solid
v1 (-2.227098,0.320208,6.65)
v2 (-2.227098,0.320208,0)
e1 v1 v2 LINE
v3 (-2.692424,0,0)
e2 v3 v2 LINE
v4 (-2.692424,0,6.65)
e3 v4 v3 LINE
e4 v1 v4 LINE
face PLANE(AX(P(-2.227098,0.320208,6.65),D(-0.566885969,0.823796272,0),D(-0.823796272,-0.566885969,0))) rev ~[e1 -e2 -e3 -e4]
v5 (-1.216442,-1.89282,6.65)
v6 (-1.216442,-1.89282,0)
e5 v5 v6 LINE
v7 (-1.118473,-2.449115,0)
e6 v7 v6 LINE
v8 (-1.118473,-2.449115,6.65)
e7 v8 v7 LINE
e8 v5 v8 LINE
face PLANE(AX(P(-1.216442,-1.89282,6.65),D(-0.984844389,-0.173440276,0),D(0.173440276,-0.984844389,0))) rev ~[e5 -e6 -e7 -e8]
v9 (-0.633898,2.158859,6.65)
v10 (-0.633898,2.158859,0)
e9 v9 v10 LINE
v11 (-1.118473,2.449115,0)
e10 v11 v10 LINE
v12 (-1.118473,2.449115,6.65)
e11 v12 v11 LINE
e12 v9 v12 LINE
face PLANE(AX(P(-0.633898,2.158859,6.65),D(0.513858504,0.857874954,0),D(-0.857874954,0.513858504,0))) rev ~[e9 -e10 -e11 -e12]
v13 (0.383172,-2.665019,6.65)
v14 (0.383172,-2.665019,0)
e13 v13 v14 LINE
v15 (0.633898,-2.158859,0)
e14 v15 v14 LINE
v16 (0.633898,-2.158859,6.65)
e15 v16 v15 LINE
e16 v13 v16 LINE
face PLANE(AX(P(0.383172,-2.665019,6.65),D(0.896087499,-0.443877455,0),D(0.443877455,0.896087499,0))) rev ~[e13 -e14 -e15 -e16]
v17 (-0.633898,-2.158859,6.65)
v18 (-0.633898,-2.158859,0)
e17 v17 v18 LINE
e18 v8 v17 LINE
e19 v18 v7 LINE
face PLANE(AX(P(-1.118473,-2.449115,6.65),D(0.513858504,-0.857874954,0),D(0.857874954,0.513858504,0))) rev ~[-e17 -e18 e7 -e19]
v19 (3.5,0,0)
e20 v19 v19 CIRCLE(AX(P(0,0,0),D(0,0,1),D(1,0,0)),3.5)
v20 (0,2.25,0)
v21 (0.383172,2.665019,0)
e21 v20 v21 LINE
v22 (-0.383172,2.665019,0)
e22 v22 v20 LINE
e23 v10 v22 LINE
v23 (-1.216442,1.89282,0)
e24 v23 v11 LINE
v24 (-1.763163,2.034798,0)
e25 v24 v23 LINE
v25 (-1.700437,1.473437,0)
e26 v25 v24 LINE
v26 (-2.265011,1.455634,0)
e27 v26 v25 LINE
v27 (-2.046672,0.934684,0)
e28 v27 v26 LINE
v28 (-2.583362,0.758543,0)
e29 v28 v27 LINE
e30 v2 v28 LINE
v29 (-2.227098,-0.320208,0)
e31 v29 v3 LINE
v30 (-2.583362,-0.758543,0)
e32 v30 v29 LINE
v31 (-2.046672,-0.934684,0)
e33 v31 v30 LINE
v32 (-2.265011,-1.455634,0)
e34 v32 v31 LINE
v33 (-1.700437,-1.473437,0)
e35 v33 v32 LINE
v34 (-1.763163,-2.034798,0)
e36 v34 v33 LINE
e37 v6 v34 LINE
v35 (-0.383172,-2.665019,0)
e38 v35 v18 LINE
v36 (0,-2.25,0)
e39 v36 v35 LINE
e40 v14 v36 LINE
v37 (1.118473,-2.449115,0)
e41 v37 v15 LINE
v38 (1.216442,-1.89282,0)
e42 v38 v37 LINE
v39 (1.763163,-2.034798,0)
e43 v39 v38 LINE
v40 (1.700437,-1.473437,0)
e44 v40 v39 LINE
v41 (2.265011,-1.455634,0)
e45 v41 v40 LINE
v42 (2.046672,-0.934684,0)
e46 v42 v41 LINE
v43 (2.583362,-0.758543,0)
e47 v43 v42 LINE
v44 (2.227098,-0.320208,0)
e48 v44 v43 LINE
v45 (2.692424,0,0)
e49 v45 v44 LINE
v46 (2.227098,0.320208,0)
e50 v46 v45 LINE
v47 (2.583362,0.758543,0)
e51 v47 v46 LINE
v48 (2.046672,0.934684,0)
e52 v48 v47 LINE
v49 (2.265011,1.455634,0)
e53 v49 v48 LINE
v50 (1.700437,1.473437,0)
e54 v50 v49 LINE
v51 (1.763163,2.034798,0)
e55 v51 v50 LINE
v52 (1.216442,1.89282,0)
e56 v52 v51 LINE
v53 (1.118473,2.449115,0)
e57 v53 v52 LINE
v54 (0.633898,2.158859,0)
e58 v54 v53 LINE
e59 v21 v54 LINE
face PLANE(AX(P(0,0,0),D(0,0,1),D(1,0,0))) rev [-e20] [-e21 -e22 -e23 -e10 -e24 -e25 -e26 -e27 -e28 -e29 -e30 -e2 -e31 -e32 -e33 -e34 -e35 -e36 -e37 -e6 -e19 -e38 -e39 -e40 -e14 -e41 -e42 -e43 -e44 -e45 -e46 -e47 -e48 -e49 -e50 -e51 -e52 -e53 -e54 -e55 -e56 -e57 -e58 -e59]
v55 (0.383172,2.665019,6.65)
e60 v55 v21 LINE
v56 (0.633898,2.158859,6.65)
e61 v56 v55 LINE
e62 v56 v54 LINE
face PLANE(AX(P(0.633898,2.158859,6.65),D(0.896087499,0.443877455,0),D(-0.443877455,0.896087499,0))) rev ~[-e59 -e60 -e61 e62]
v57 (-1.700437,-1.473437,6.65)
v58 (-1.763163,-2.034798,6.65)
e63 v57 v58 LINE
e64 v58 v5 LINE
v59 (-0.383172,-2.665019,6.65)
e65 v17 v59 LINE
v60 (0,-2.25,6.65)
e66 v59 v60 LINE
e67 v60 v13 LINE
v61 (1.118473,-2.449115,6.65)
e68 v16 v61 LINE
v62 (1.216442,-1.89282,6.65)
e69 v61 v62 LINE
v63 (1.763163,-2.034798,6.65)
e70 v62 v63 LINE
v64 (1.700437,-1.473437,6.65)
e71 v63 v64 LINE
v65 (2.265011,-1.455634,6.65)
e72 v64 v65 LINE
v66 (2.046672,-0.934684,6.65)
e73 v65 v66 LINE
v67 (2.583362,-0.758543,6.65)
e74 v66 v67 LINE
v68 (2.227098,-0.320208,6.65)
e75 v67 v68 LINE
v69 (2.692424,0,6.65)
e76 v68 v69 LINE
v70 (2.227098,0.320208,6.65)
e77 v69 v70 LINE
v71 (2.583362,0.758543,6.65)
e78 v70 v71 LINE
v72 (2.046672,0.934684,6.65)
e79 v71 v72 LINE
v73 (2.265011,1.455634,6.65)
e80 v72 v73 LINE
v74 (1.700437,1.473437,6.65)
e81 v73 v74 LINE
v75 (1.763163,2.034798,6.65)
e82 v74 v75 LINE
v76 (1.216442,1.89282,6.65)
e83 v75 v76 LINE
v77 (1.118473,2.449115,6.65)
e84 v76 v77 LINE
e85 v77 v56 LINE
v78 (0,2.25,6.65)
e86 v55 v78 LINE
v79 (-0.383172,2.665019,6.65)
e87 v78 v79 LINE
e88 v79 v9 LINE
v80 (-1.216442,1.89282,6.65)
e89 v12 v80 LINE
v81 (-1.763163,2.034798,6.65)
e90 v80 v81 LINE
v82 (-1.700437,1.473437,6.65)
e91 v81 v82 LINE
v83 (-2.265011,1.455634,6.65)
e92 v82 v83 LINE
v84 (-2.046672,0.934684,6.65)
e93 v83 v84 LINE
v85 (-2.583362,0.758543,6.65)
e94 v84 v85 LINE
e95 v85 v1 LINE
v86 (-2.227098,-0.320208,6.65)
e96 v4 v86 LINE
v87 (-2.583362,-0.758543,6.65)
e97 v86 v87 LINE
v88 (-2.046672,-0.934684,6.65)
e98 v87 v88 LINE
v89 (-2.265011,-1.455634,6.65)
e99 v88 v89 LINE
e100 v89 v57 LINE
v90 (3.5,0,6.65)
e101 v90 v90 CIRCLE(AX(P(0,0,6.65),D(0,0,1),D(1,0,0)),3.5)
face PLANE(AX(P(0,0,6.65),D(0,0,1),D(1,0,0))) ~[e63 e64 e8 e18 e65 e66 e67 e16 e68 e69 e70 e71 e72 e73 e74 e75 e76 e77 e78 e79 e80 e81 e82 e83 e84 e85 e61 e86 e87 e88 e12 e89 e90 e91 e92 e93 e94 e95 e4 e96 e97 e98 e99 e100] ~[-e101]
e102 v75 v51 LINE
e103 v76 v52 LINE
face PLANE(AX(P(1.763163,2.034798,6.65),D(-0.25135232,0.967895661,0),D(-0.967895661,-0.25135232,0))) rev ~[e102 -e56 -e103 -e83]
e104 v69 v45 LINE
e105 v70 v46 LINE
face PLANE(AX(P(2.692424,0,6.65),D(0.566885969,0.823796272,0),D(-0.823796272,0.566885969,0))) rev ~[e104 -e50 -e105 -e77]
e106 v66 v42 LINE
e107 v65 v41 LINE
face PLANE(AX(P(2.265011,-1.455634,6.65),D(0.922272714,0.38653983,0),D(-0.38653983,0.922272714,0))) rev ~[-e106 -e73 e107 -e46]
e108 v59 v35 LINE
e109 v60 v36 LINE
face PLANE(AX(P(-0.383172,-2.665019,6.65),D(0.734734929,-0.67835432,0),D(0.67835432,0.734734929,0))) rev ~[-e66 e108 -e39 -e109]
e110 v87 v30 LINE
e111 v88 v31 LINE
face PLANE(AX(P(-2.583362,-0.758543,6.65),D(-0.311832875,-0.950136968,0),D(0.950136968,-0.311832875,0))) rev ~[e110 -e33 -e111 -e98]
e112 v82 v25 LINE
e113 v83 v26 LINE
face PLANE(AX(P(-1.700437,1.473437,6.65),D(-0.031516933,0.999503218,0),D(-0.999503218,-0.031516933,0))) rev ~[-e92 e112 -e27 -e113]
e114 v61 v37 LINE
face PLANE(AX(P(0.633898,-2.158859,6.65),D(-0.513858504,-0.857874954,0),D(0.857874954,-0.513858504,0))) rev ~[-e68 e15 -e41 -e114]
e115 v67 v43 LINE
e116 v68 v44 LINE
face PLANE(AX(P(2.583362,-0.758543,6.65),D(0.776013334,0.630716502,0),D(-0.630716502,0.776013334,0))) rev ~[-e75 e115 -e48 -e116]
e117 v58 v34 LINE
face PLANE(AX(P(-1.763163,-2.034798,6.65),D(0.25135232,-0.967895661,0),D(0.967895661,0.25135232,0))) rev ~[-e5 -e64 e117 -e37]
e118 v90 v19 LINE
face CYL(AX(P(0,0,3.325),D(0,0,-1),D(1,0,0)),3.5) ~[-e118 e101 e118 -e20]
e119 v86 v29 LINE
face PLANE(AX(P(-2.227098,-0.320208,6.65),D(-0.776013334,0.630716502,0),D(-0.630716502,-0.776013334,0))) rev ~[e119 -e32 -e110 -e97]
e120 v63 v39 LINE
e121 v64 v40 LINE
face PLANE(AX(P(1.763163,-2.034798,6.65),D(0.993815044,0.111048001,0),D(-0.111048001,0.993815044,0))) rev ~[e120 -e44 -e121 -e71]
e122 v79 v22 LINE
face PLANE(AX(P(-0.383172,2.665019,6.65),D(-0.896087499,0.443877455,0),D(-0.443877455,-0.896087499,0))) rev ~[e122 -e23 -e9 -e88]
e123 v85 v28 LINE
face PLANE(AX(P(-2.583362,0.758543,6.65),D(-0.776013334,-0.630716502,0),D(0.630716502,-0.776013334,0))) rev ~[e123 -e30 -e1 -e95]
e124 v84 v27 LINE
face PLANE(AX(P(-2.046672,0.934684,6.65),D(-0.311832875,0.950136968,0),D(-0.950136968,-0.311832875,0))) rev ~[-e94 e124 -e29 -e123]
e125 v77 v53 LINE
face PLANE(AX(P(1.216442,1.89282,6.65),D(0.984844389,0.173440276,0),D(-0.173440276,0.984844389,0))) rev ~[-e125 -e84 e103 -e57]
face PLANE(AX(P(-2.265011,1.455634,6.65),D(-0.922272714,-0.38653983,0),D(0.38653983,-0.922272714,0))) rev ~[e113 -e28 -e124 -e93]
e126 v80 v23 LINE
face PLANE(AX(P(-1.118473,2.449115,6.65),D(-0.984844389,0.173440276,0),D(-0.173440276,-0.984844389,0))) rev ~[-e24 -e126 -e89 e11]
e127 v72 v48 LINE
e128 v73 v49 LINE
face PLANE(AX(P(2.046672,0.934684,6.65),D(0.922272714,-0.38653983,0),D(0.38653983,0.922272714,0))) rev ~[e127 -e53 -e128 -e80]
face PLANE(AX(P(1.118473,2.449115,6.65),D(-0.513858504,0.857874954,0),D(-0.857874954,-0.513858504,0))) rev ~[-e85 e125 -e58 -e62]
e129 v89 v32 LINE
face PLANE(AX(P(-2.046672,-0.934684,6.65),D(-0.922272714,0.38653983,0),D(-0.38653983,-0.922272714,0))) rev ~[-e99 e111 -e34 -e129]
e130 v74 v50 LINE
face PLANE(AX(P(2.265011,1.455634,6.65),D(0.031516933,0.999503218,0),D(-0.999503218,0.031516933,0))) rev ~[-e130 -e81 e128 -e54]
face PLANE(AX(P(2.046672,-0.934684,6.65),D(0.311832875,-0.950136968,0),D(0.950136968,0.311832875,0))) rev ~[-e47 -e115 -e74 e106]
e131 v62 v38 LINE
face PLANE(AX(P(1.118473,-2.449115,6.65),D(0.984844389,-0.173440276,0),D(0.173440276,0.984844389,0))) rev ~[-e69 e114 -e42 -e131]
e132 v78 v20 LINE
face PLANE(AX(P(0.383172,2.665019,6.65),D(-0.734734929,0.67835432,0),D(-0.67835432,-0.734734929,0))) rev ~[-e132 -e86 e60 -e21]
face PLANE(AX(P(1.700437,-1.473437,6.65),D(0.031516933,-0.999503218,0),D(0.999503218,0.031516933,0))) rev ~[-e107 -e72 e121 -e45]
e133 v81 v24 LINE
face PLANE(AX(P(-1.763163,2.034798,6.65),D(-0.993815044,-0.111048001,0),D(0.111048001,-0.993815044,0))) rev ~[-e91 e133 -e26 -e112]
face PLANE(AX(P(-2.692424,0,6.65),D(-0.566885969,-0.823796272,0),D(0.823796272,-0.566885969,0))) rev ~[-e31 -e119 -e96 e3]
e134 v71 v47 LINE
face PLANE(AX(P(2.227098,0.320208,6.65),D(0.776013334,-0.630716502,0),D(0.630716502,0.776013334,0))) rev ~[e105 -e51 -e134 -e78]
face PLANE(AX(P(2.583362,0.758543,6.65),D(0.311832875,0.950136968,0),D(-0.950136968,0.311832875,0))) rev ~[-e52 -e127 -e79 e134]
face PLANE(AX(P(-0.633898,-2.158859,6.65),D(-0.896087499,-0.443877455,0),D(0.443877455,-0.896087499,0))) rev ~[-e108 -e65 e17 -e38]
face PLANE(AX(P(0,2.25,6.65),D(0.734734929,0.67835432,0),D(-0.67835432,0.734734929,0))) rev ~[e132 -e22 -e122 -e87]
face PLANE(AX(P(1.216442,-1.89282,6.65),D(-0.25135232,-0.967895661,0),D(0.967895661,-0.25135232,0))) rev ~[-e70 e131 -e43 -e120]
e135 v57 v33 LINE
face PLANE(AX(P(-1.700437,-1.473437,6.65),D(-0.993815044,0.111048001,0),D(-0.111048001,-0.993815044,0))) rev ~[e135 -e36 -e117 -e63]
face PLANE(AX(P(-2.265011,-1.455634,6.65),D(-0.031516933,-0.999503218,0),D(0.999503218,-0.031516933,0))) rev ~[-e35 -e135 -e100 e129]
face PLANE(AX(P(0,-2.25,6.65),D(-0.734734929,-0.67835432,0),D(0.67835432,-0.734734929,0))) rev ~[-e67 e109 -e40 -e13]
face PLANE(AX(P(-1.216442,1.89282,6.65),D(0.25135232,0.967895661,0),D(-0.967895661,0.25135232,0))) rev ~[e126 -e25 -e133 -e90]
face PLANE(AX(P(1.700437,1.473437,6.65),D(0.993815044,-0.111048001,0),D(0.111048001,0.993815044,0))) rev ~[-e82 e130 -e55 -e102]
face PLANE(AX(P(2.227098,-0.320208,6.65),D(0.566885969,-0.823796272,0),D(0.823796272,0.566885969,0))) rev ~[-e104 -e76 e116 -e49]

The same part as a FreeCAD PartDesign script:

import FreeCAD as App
import Part
import Sketcher

V = App.Vector
Q = App.Units.Quantity

doc = App.newDocument("Part")
body = doc.addObject("PartDesign::Body", "Body")

sketch1 = body.newObject("Sketcher::SketchObject", "Sketch")
sketch1.AttachmentSupport = (doc.getObject("XZ_Plane"), [""])
sketch1.MapMode = "FlatFace"
sketch1.addGeometry(Part.LineSegment(V(0, 0, 0), V(0, 6.7, 0)), False)
sketch1.addGeometry(Part.LineSegment(V(0, 6.7, 0), V(3.5, 6.7, 0)), False)
sketch1.addGeometry(Part.LineSegment(V(3.5, 6.7, 0), V(3.5, 0, 0)), False)
sketch1.addGeometry(Part.LineSegment(V(3.5, 0, 0), V(0, 0, 0)), False)
sketch1.addConstraint(Sketcher.Constraint("Coincident", 0, 2, 1, 1))
sketch1.addConstraint(Sketcher.Constraint("Coincident", 1, 2, 2, 1))
sketch1.addConstraint(Sketcher.Constraint("Coincident", 2, 2, 3, 1))
sketch1.addConstraint(Sketcher.Constraint("Coincident", 3, 2, 0, 1))
sketch1.addConstraint(Sketcher.Constraint("Vertical", 0))
sketch1.addConstraint(Sketcher.Constraint("Horizontal", 1))
sketch1.addConstraint(Sketcher.Constraint("Vertical", 2))
sketch1.addConstraint(Sketcher.Constraint("Horizontal", 3))
sketch1.addConstraint(Sketcher.Constraint("Coincident", 3, 2, -1, 1))
sketch1.addConstraint(Sketcher.Constraint("DistanceX", 1, 1, 1, 2, 3.5))
sketch1.addConstraint(Sketcher.Constraint("DistanceY", 0, 1, 0, 2, 6.65))
revolution = body.newObject("PartDesign::Revolution", "Revolution")
revolution.Profile = sketch1
revolution.ReferenceAxis = (sketch1, ["V_Axis"])
revolution.Angle = 360

sketch2 = body.newObject("Sketcher::SketchObject", "Sketch001")
sketch2.AttachmentSupport = (doc.getObject("XY_Plane"), [""])
sketch2.MapMode = "FlatFace"
sketch2.AttachmentOffset = App.Placement(V(0, 0, 6.65), App.Rotation())
sketch2.addGeometry(Part.LineSegment(V(2.06, 1.32, 0), V(1.7, 1.47, 0)), False)
sketch2.addGeometry(Part.LineSegment(V(1.7, 1.47, 0), V(1.6, 1.85, 0)), False)
sketch2.addGeometry(Part.LineSegment(V(1.6, 1.85, 0), V(1.22, 1.89, 0)), False)
sketch2.addGeometry(Part.LineSegment(V(1.22, 1.89, 0), V(1.02, 2.23, 0)), False)
sketch2.addGeometry(Part.LineSegment(V(1.02, 2.23, 0), V(0.63, 2.16, 0)), False)
sketch2.addGeometry(Part.LineSegment(V(0.63, 2.16, 0), V(0.35, 2.42, 0)), False)
sketch2.addGeometry(Part.LineSegment(V(0.35, 2.42, 0), V(0, 2.25, 0)), False)
sketch2.addGeometry(Part.LineSegment(V(0, 2.25, 0), V(-0.35, 2.42, 0)), False)
sketch2.addGeometry(Part.LineSegment(V(-0.35, 2.42, 0), V(-0.63, 2.16, 0)), False)
sketch2.addGeometry(Part.LineSegment(V(-0.63, 2.16, 0), V(-1.02, 2.23, 0)), False)
sketch2.addGeometry(Part.LineSegment(V(-1.02, 2.23, 0), V(-1.22, 1.89, 0)), False)
sketch2.addGeometry(Part.LineSegment(V(-1.22, 1.89, 0), V(-1.6, 1.85, 0)), False)
sketch2.addGeometry(Part.LineSegment(V(-1.6, 1.85, 0), V(-1.7, 1.47, 0)), False)
sketch2.addGeometry(Part.LineSegment(V(-1.7, 1.47, 0), V(-2.06, 1.32, 0)), False)
sketch2.addGeometry(Part.LineSegment(V(-2.06, 1.32, 0), V(-2.05, 0.93, 0)), False)
sketch2.addGeometry(Part.LineSegment(V(-2.05, 0.93, 0), V(-2.35, 0.69, 0)), False)
sketch2.addGeometry(Part.LineSegment(V(-2.35, 0.69, 0), V(-2.23, 0.32, 0)), False)
sketch2.addGeometry(Part.LineSegment(V(-2.23, 0.32, 0), V(-2.45, 0, 0)), False)
sketch2.addGeometry(Part.LineSegment(V(-2.45, 0, 0), V(-2.23, -0.32, 0)), False)
sketch2.addGeometry(Part.LineSegment(V(-2.23, -0.32, 0), V(-2.35, -0.69, 0)), False)
sketch2.addGeometry(Part.LineSegment(V(-2.35, -0.69, 0), V(-2.05, -0.93, 0)), False)
sketch2.addGeometry(Part.LineSegment(V(-2.05, -0.93, 0), V(-2.06, -1.32, 0)), False)
sketch2.addGeometry(Part.LineSegment(V(-2.06, -1.32, 0), V(-1.7, -1.47, 0)), False)
sketch2.addGeometry(Part.LineSegment(V(-1.7, -1.47, 0), V(-1.6, -1.85, 0)), False)
sketch2.addGeometry(Part.LineSegment(V(-1.6, -1.85, 0), V(-1.22, -1.89, 0)), False)
sketch2.addGeometry(Part.LineSegment(V(-1.22, -1.89, 0), V(-1.02, -2.23, 0)), False)
sketch2.addGeometry(Part.LineSegment(V(-1.02, -2.23, 0), V(-0.63, -2.16, 0)), False)
sketch2.addGeometry(Part.LineSegment(V(-0.63, -2.16, 0), V(-0.35, -2.42, 0)), False)
sketch2.addGeometry(Part.LineSegment(V(-0.35, -2.42, 0), V(0, -2.25, 0)), False)
sketch2.addGeometry(Part.LineSegment(V(0, -2.25, 0), V(0.35, -2.42, 0)), False)
sketch2.addGeometry(Part.LineSegment(V(0.35, -2.42, 0), V(0.63, -2.16, 0)), False)
sketch2.addGeometry(Part.LineSegment(V(0.63, -2.16, 0), V(1.02, -2.23, 0)), False)
sketch2.addGeometry(Part.LineSegment(V(1.02, -2.23, 0), V(1.22, -1.89, 0)), False)
sketch2.addGeometry(Part.LineSegment(V(1.22, -1.89, 0), V(1.6, -1.85, 0)), False)
sketch2.addGeometry(Part.LineSegment(V(1.6, -1.85, 0), V(1.7, -1.47, 0)), False)
sketch2.addGeometry(Part.LineSegment(V(1.7, -1.47, 0), V(2.06, -1.32, 0)), False)
sketch2.addGeometry(Part.LineSegment(V(2.06, -1.32, 0), V(2.05, -0.93, 0)), False)
sketch2.addGeometry(Part.LineSegment(V(2.05, -0.93, 0), V(2.35, -0.69, 0)), False)
sketch2.addGeometry(Part.LineSegment(V(2.35, -0.69, 0), V(2.23, -0.32, 0)), False)
sketch2.addGeometry(Part.LineSegment(V(2.23, -0.32, 0), V(2.45, 0, 0)), False)
sketch2.addGeometry(Part.LineSegment(V(2.45, 0, 0), V(2.23, 0.32, 0)), False)
sketch2.addGeometry(Part.LineSegment(V(2.23, 0.32, 0), V(2.35, 0.69, 0)), False)
sketch2.addGeometry(Part.LineSegment(V(2.35, 0.69, 0), V(2.05, 0.93, 0)), False)
sketch2.addGeometry(Part.LineSegment(V(2.05, 0.93, 0), V(2.06, 1.32, 0)), False)
sketch2.addConstraint(Sketcher.Constraint("Coincident", 0, 2, 1, 1))
sketch2.addConstraint(Sketcher.Constraint("Coincident", 1, 2, 2, 1))
sketch2.addConstraint(Sketcher.Constraint("Coincident", 2, 2, 3, 1))
sketch2.addConstraint(Sketcher.Constraint("Coincident", 3, 2, 4, 1))
sketch2.addConstraint(Sketcher.Constraint("Coincident", 4, 2, 5, 1))
sketch2.addConstraint(Sketcher.Constraint("Coincident", 5, 2, 6, 1))
sketch2.addConstraint(Sketcher.Constraint("Coincident", 6, 2, 7, 1))
sketch2.addConstraint(Sketcher.Constraint("Coincident", 7, 2, 8, 1))
sketch2.addConstraint(Sketcher.Constraint("Coincident", 8, 2, 9, 1))
sketch2.addConstraint(Sketcher.Constraint("Coincident", 9, 2, 10, 1))
sketch2.addConstraint(Sketcher.Constraint("Coincident", 10, 2, 11, 1))
sketch2.addConstraint(Sketcher.Constraint("Coincident", 11, 2, 12, 1))
sketch2.addConstraint(Sketcher.Constraint("Coincident", 12, 2, 13, 1))
sketch2.addConstraint(Sketcher.Constraint("Coincident", 13, 2, 14, 1))
sketch2.addConstraint(Sketcher.Constraint("Coincident", 14, 2, 15, 1))
sketch2.addConstraint(Sketcher.Constraint("Coincident", 15, 2, 16, 1))
sketch2.addConstraint(Sketcher.Constraint("Coincident", 16, 2, 17, 1))
sketch2.addConstraint(Sketcher.Constraint("Coincident", 17, 2, 18, 1))
sketch2.addConstraint(Sketcher.Constraint("Coincident", 18, 2, 19, 1))
sketch2.addConstraint(Sketcher.Constraint("Coincident", 19, 2, 20, 1))
sketch2.addConstraint(Sketcher.Constraint("Coincident", 20, 2, 21, 1))
sketch2.addConstraint(Sketcher.Constraint("Coincident", 21, 2, 22, 1))
sketch2.addConstraint(Sketcher.Constraint("Coincident", 22, 2, 23, 1))
sketch2.addConstraint(Sketcher.Constraint("Coincident", 23, 2, 24, 1))
sketch2.addConstraint(Sketcher.Constraint("Coincident", 24, 2, 25, 1))
sketch2.addConstraint(Sketcher.Constraint("Coincident", 25, 2, 26, 1))
sketch2.addConstraint(Sketcher.Constraint("Coincident", 26, 2, 27, 1))
sketch2.addConstraint(Sketcher.Constraint("Coincident", 27, 2, 28, 1))
sketch2.addConstraint(Sketcher.Constraint("Coincident", 28, 2, 29, 1))
sketch2.addConstraint(Sketcher.Constraint("Coincident", 29, 2, 30, 1))
sketch2.addConstraint(Sketcher.Constraint("Coincident", 30, 2, 31, 1))
sketch2.addConstraint(Sketcher.Constraint("Coincident", 31, 2, 32, 1))
sketch2.addConstraint(Sketcher.Constraint("Coincident", 32, 2, 33, 1))
sketch2.addConstraint(Sketcher.Constraint("Coincident", 33, 2, 34, 1))
sketch2.addConstraint(Sketcher.Constraint("Coincident", 34, 2, 35, 1))
sketch2.addConstraint(Sketcher.Constraint("Coincident", 35, 2, 36, 1))
sketch2.addConstraint(Sketcher.Constraint("Coincident", 36, 2, 37, 1))
sketch2.addConstraint(Sketcher.Constraint("Coincident", 37, 2, 38, 1))
sketch2.addConstraint(Sketcher.Constraint("Coincident", 38, 2, 39, 1))
sketch2.addConstraint(Sketcher.Constraint("Coincident", 39, 2, 40, 1))
sketch2.addConstraint(Sketcher.Constraint("Coincident", 40, 2, 41, 1))
sketch2.addConstraint(Sketcher.Constraint("Coincident", 41, 2, 42, 1))
sketch2.addConstraint(Sketcher.Constraint("Coincident", 42, 2, 43, 1))
sketch2.addConstraint(Sketcher.Constraint("Coincident", 43, 2, 0, 1))
sketch2.addConstraint(Sketcher.Constraint("Symmetric", 0, 2, 22, 2, -1, 1))
sketch2.addConstraint(Sketcher.Constraint("Symmetric", 1, 2, 23, 2, -1, 1))
sketch2.addConstraint(Sketcher.Constraint("Symmetric", 2, 2, 24, 2, -1, 1))
sketch2.addConstraint(Sketcher.Constraint("Symmetric", 3, 2, 25, 2, -1, 1))
sketch2.addConstraint(Sketcher.Constraint("Symmetric", 4, 2, 26, 2, -1, 1))
sketch2.addConstraint(Sketcher.Constraint("Symmetric", 5, 2, 27, 2, -1, 1))
sketch2.addConstraint(Sketcher.Constraint("Symmetric", 6, 2, 28, 2, -1, 1))
sketch2.addConstraint(Sketcher.Constraint("Symmetric", 7, 2, 29, 2, -1, 1))
sketch2.addConstraint(Sketcher.Constraint("Symmetric", 8, 2, 30, 2, -1, 1))
sketch2.addConstraint(Sketcher.Constraint("Symmetric", 9, 2, 31, 2, -1, 1))
sketch2.addConstraint(Sketcher.Constraint("Symmetric", 10, 2, 32, 2, -1, 1))
sketch2.addConstraint(Sketcher.Constraint("Symmetric", 11, 2, 33, 2, -1, 1))
sketch2.addConstraint(Sketcher.Constraint("Symmetric", 12, 2, 34, 2, -1, 1))
sketch2.addConstraint(Sketcher.Constraint("Symmetric", 13, 2, 35, 2, -1, 1))
sketch2.addConstraint(Sketcher.Constraint("Symmetric", 14, 2, 36, 2, -1, 1))
sketch2.addConstraint(Sketcher.Constraint("Symmetric", 15, 2, 37, 2, -1, 1))
sketch2.addConstraint(Sketcher.Constraint("Symmetric", 16, 2, 38, 2, -1, 1))
sketch2.addConstraint(Sketcher.Constraint("Symmetric", 17, 2, 39, 2, -1, 1))
sketch2.addConstraint(Sketcher.Constraint("Symmetric", 18, 2, 40, 2, -1, 1))
sketch2.addConstraint(Sketcher.Constraint("Symmetric", 19, 2, 41, 2, -1, 1))
sketch2.addConstraint(Sketcher.Constraint("Symmetric", 20, 2, 42, 2, -1, 1))
sketch2.addConstraint(Sketcher.Constraint("Symmetric", 21, 2, 43, 2, -1, 1))
sketch2.addConstraint(Sketcher.Constraint("Symmetric", 5, 2, 7, 2, -2))
sketch2.addConstraint(Sketcher.Constraint("Symmetric", 4, 2, 8, 2, -2))
sketch2.addConstraint(Sketcher.Constraint("Symmetric", 3, 2, 9, 2, -2))
sketch2.addConstraint(Sketcher.Constraint("Symmetric", 2, 2, 10, 2, -2))
sketch2.addConstraint(Sketcher.Constraint("Symmetric", 1, 2, 11, 2, -2))
sketch2.addConstraint(Sketcher.Constraint("Symmetric", 0, 2, 12, 2, -2))
sketch2.addConstraint(Sketcher.Constraint("Symmetric", 21, 2, 35, 2, -2))
sketch2.addConstraint(Sketcher.Constraint("Symmetric", 20, 2, 36, 2, -2))
sketch2.addConstraint(Sketcher.Constraint("Symmetric", 19, 2, 37, 2, -2))
sketch2.addConstraint(Sketcher.Constraint("Symmetric", 18, 2, 38, 2, -2))
sketch2.addConstraint(Sketcher.Constraint("PointOnObject", 6, 2, -2))
sketch2.addConstraint(Sketcher.Constraint("PointOnObject", 17, 2, -1))
sketch2.addConstraint(Sketcher.Constraint("Equal", 0, 1))
sketch2.addConstraint(Sketcher.Constraint("Equal", 1, 2))
sketch2.addConstraint(Sketcher.Constraint("Equal", 2, 3))
sketch2.addConstraint(Sketcher.Constraint("Equal", 3, 4))
sketch2.addConstraint(Sketcher.Constraint("Equal", 4, 5))
sketch2.addConstraint(Sketcher.Constraint("Equal", 5, 6))
sketch2.addConstraint(Sketcher.Constraint("Equal", 13, 14))
sketch2.addConstraint(Sketcher.Constraint("Equal", 14, 15))
sketch2.addConstraint(Sketcher.Constraint("Equal", 15, 16))
sketch2.addConstraint(Sketcher.Constraint("Equal", 16, 17))
sketch2.addConstraint(Sketcher.Constraint("Angle", 17, Q("-124.72999 deg")))
sketch2.addConstraint(Sketcher.Constraint("DistanceY", -1, 1, 6, 2, 2.25))
sketch2.addConstraint(Sketcher.Constraint("DistanceX", -1, 1, 1, 2, 1.603799))
sketch2.addConstraint(Sketcher.Constraint("DistanceX", -1, 1, 4, 2, 0.633898))
sketch2.addConstraint(Sketcher.Constraint("DistanceX", 16, 2, -1, 1, 2.227098))
sketch2.addConstraint(Sketcher.Constraint("DistanceY", 14, 2, 11, 2, 0.916199))
sketch2.addConstraint(Sketcher.Constraint("DistanceY", 15, 2, 14, 2, 0.244701))
sketch2.addConstraint(Sketcher.Constraint("Distance", 0, 0.389621))
sketch2.addConstraint(Sketcher.Constraint("DistanceX", -1, 1, 2, 2, 1.216442))
sketch2.addConstraint(Sketcher.Constraint("DistanceY", -1, 1, 2, 2, 1.89282))
sketch2.addConstraint(Sketcher.Constraint("DistanceX", -1, 1, 3, 2, 1.01738))
sketch2.addConstraint(Sketcher.Constraint("DistanceX", 13, 2, -1, 1, 2.060288))
pocket1 = body.newObject("PartDesign::Pocket", "Pocket")
pocket1.Profile = sketch2
pocket1.Length = 9

sketch3 = body.newObject("Sketcher::SketchObject", "Sketch002")
sketch3.AttachmentSupport = (doc.getObject("XY_Plane"), [""])
sketch3.MapMode = "FlatFace"
sketch3.AttachmentOffset = App.Placement(V(0, 0, 6.65), App.Rotation())
sketch3.addGeometry(Part.LineSegment(V(0, -2.2, 0), V(0.4, -2.7, 0)), False)
sketch3.addGeometry(Part.LineSegment(V(0.4, -2.7, 0), V(0.6, -2.2, 0)), False)
sketch3.addGeometry(Part.LineSegment(V(0.6, -2.2, 0), V(1.1, -2.4, 0)), False)
sketch3.addGeometry(Part.LineSegment(V(1.1, -2.4, 0), V(1.2, -1.9, 0)), False)
sketch3.addGeometry(Part.LineSegment(V(1.2, -1.9, 0), V(1.8, -2, 0)), False)
sketch3.addGeometry(Part.LineSegment(V(1.8, -2, 0), V(1.7, -1.5, 0)), False)
sketch3.addGeometry(Part.LineSegment(V(1.7, -1.5, 0), V(2.3, -1.5, 0)), False)
sketch3.addGeometry(Part.LineSegment(V(2.3, -1.5, 0), V(2, -0.9, 0)), False)
sketch3.addGeometry(Part.LineSegment(V(2, -0.9, 0), V(2.6, -0.8, 0)), False)
sketch3.addGeometry(Part.LineSegment(V(2.6, -0.8, 0), V(2.2, -0.3, 0)), False)
sketch3.addGeometry(Part.LineSegment(V(2.2, -0.3, 0), V(2.7, 0, 0)), False)
sketch3.addGeometry(Part.LineSegment(V(2.7, 0, 0), V(2.2, 0.3, 0)), False)
sketch3.addGeometry(Part.LineSegment(V(2.2, 0.3, 0), V(2.6, 0.8, 0)), False)
sketch3.addGeometry(Part.LineSegment(V(2.6, 0.8, 0), V(2, 0.9, 0)), False)
sketch3.addGeometry(Part.LineSegment(V(2, 0.9, 0), V(2.3, 1.5, 0)), False)
sketch3.addGeometry(Part.LineSegment(V(2.3, 1.5, 0), V(1.7, 1.5, 0)), False)
sketch3.addGeometry(Part.LineSegment(V(1.7, 1.5, 0), V(1.8, 2, 0)), False)
sketch3.addGeometry(Part.LineSegment(V(1.8, 2, 0), V(1.2, 1.9, 0)), False)
sketch3.addGeometry(Part.LineSegment(V(1.2, 1.9, 0), V(1.1, 2.4, 0)), False)
sketch3.addGeometry(Part.LineSegment(V(1.1, 2.4, 0), V(0.6, 2.2, 0)), False)
sketch3.addGeometry(Part.LineSegment(V(0.6, 2.2, 0), V(0.4, 2.7, 0)), False)
sketch3.addGeometry(Part.LineSegment(V(0.4, 2.7, 0), V(0, 2.2, 0)), False)
sketch3.addGeometry(Part.LineSegment(V(0, 2.2, 0), V(-0.4, 2.7, 0)), False)
sketch3.addGeometry(Part.LineSegment(V(-0.4, 2.7, 0), V(-0.6, 2.2, 0)), False)
sketch3.addGeometry(Part.LineSegment(V(-0.6, 2.2, 0), V(-1.1, 2.4, 0)), False)
sketch3.addGeometry(Part.LineSegment(V(-1.1, 2.4, 0), V(-1.2, 1.9, 0)), False)
sketch3.addGeometry(Part.LineSegment(V(-1.2, 1.9, 0), V(-1.8, 2, 0)), False)
sketch3.addGeometry(Part.LineSegment(V(-1.8, 2, 0), V(-1.7, 1.5, 0)), False)
sketch3.addGeometry(Part.LineSegment(V(-1.7, 1.5, 0), V(-2.3, 1.5, 0)), False)
sketch3.addGeometry(Part.LineSegment(V(-2.3, 1.5, 0), V(-2, 0.9, 0)), False)
sketch3.addGeometry(Part.LineSegment(V(-2, 0.9, 0), V(-2.6, 0.8, 0)), False)
sketch3.addGeometry(Part.LineSegment(V(-2.6, 0.8, 0), V(-2.2, 0.3, 0)), False)
sketch3.addGeometry(Part.LineSegment(V(-2.2, 0.3, 0), V(-2.7, 0, 0)), False)
sketch3.addGeometry(Part.LineSegment(V(-2.7, 0, 0), V(-2.2, -0.3, 0)), False)
sketch3.addGeometry(Part.LineSegment(V(-2.2, -0.3, 0), V(-2.6, -0.8, 0)), False)
sketch3.addGeometry(Part.LineSegment(V(-2.6, -0.8, 0), V(-2, -0.9, 0)), False)
sketch3.addGeometry(Part.LineSegment(V(-2, -0.9, 0), V(-2.3, -1.5, 0)), False)
sketch3.addGeometry(Part.LineSegment(V(-2.3, -1.5, 0), V(-1.7, -1.5, 0)), False)
sketch3.addGeometry(Part.LineSegment(V(-1.7, -1.5, 0), V(-1.8, -2, 0)), False)
sketch3.addGeometry(Part.LineSegment(V(-1.8, -2, 0), V(-1.2, -1.9, 0)), False)
sketch3.addGeometry(Part.LineSegment(V(-1.2, -1.9, 0), V(-1.1, -2.4, 0)), False)
sketch3.addGeometry(Part.LineSegment(V(-1.1, -2.4, 0), V(-0.6, -2.2, 0)), False)
sketch3.addGeometry(Part.LineSegment(V(-0.6, -2.2, 0), V(-0.4, -2.7, 0)), False)
sketch3.addGeometry(Part.LineSegment(V(-0.4, -2.7, 0), V(0, -2.2, 0)), False)
sketch3.addConstraint(Sketcher.Constraint("Coincident", 0, 2, 1, 1))
sketch3.addConstraint(Sketcher.Constraint("Coincident", 1, 2, 2, 1))
sketch3.addConstraint(Sketcher.Constraint("Coincident", 2, 2, 3, 1))
sketch3.addConstraint(Sketcher.Constraint("Coincident", 3, 2, 4, 1))
sketch3.addConstraint(Sketcher.Constraint("Coincident", 4, 2, 5, 1))
sketch3.addConstraint(Sketcher.Constraint("Coincident", 5, 2, 6, 1))
sketch3.addConstraint(Sketcher.Constraint("Coincident", 6, 2, 7, 1))
sketch3.addConstraint(Sketcher.Constraint("Coincident", 7, 2, 8, 1))
sketch3.addConstraint(Sketcher.Constraint("Coincident", 8, 2, 9, 1))
sketch3.addConstraint(Sketcher.Constraint("Coincident", 9, 2, 10, 1))
sketch3.addConstraint(Sketcher.Constraint("Coincident", 10, 2, 11, 1))
sketch3.addConstraint(Sketcher.Constraint("Coincident", 11, 2, 12, 1))
sketch3.addConstraint(Sketcher.Constraint("Coincident", 12, 2, 13, 1))
sketch3.addConstraint(Sketcher.Constraint("Coincident", 13, 2, 14, 1))
sketch3.addConstraint(Sketcher.Constraint("Coincident", 14, 2, 15, 1))
sketch3.addConstraint(Sketcher.Constraint("Coincident", 15, 2, 16, 1))
sketch3.addConstraint(Sketcher.Constraint("Coincident", 16, 2, 17, 1))
sketch3.addConstraint(Sketcher.Constraint("Coincident", 17, 2, 18, 1))
sketch3.addConstraint(Sketcher.Constraint("Coincident", 18, 2, 19, 1))
sketch3.addConstraint(Sketcher.Constraint("Coincident", 19, 2, 20, 1))
sketch3.addConstraint(Sketcher.Constraint("Coincident", 20, 2, 21, 1))
sketch3.addConstraint(Sketcher.Constraint("Coincident", 21, 2, 22, 1))
sketch3.addConstraint(Sketcher.Constraint("Coincident", 22, 2, 23, 1))
sketch3.addConstraint(Sketcher.Constraint("Coincident", 23, 2, 24, 1))
sketch3.addConstraint(Sketcher.Constraint("Coincident", 24, 2, 25, 1))
sketch3.addConstraint(Sketcher.Constraint("Coincident", 25, 2, 26, 1))
sketch3.addConstraint(Sketcher.Constraint("Coincident", 26, 2, 27, 1))
sketch3.addConstraint(Sketcher.Constraint("Coincident", 27, 2, 28, 1))
sketch3.addConstraint(Sketcher.Constraint("Coincident", 28, 2, 29, 1))
sketch3.addConstraint(Sketcher.Constraint("Coincident", 29, 2, 30, 1))
sketch3.addConstraint(Sketcher.Constraint("Coincident", 30, 2, 31, 1))
sketch3.addConstraint(Sketcher.Constraint("Coincident", 31, 2, 32, 1))
sketch3.addConstraint(Sketcher.Constraint("Coincident", 32, 2, 33, 1))
sketch3.addConstraint(Sketcher.Constraint("Coincident", 33, 2, 34, 1))
sketch3.addConstraint(Sketcher.Constraint("Coincident", 34, 2, 35, 1))
sketch3.addConstraint(Sketcher.Constraint("Coincident", 35, 2, 36, 1))
sketch3.addConstraint(Sketcher.Constraint("Coincident", 36, 2, 37, 1))
sketch3.addConstraint(Sketcher.Constraint("Coincident", 37, 2, 38, 1))
sketch3.addConstraint(Sketcher.Constraint("Coincident", 38, 2, 39, 1))
sketch3.addConstraint(Sketcher.Constraint("Coincident", 39, 2, 40, 1))
sketch3.addConstraint(Sketcher.Constraint("Coincident", 40, 2, 41, 1))
sketch3.addConstraint(Sketcher.Constraint("Coincident", 41, 2, 42, 1))
sketch3.addConstraint(Sketcher.Constraint("Coincident", 42, 2, 43, 1))
sketch3.addConstraint(Sketcher.Constraint("Coincident", 43, 2, 0, 1))
sketch3.addConstraint(Sketcher.Constraint("Symmetric", 0, 2, 22, 2, -1, 1))
sketch3.addConstraint(Sketcher.Constraint("Symmetric", 1, 2, 23, 2, -1, 1))
sketch3.addConstraint(Sketcher.Constraint("Symmetric", 2, 2, 24, 2, -1, 1))
sketch3.addConstraint(Sketcher.Constraint("Symmetric", 3, 2, 25, 2, -1, 1))
sketch3.addConstraint(Sketcher.Constraint("Symmetric", 4, 2, 26, 2, -1, 1))
sketch3.addConstraint(Sketcher.Constraint("Symmetric", 5, 2, 27, 2, -1, 1))
sketch3.addConstraint(Sketcher.Constraint("Symmetric", 6, 2, 28, 2, -1, 1))
sketch3.addConstraint(Sketcher.Constraint("Symmetric", 7, 2, 29, 2, -1, 1))
sketch3.addConstraint(Sketcher.Constraint("Symmetric", 8, 2, 30, 2, -1, 1))
sketch3.addConstraint(Sketcher.Constraint("Symmetric", 9, 2, 31, 2, -1, 1))
sketch3.addConstraint(Sketcher.Constraint("Symmetric", 10, 2, 32, 2, -1, 1))
sketch3.addConstraint(Sketcher.Constraint("Symmetric", 11, 2, 33, 2, -1, 1))
sketch3.addConstraint(Sketcher.Constraint("Symmetric", 12, 2, 34, 2, -1, 1))
sketch3.addConstraint(Sketcher.Constraint("Symmetric", 13, 2, 35, 2, -1, 1))
sketch3.addConstraint(Sketcher.Constraint("Symmetric", 14, 2, 36, 2, -1, 1))
sketch3.addConstraint(Sketcher.Constraint("Symmetric", 15, 2, 37, 2, -1, 1))
sketch3.addConstraint(Sketcher.Constraint("Symmetric", 16, 2, 38, 2, -1, 1))
sketch3.addConstraint(Sketcher.Constraint("Symmetric", 17, 2, 39, 2, -1, 1))
sketch3.addConstraint(Sketcher.Constraint("Symmetric", 18, 2, 40, 2, -1, 1))
sketch3.addConstraint(Sketcher.Constraint("Symmetric", 19, 2, 41, 2, -1, 1))
sketch3.addConstraint(Sketcher.Constraint("Symmetric", 20, 2, 42, 2, -1, 1))
sketch3.addConstraint(Sketcher.Constraint("Symmetric", 21, 2, 43, 2, -1, 1))
sketch3.addConstraint(Sketcher.Constraint("Symmetric", 20, 2, 22, 2, -2))
sketch3.addConstraint(Sketcher.Constraint("Symmetric", 19, 2, 23, 2, -2))
sketch3.addConstraint(Sketcher.Constraint("Symmetric", 18, 2, 24, 2, -2))
sketch3.addConstraint(Sketcher.Constraint("Symmetric", 17, 2, 25, 2, -2))
sketch3.addConstraint(Sketcher.Constraint("Symmetric", 16, 2, 26, 2, -2))
sketch3.addConstraint(Sketcher.Constraint("Symmetric", 15, 2, 27, 2, -2))
sketch3.addConstraint(Sketcher.Constraint("Symmetric", 14, 2, 28, 2, -2))
sketch3.addConstraint(Sketcher.Constraint("Symmetric", 13, 2, 29, 2, -2))
sketch3.addConstraint(Sketcher.Constraint("Symmetric", 12, 2, 30, 2, -2))
sketch3.addConstraint(Sketcher.Constraint("Symmetric", 11, 2, 31, 2, -2))
sketch3.addConstraint(Sketcher.Constraint("PointOnObject", 10, 2, -1))
sketch3.addConstraint(Sketcher.Constraint("PointOnObject", 21, 2, -2))
sketch3.addConstraint(Sketcher.Constraint("Equal", 0, 1))
sketch3.addConstraint(Sketcher.Constraint("Equal", 1, 2))
sketch3.addConstraint(Sketcher.Constraint("Equal", 2, 3))
sketch3.addConstraint(Sketcher.Constraint("Equal", 3, 4))
sketch3.addConstraint(Sketcher.Constraint("Equal", 4, 5))
sketch3.addConstraint(Sketcher.Constraint("Equal", 5, 6))
sketch3.addConstraint(Sketcher.Constraint("Equal", 6, 7))
sketch3.addConstraint(Sketcher.Constraint("Equal", 7, 8))
sketch3.addConstraint(Sketcher.Constraint("Equal", 8, 9))
sketch3.addConstraint(Sketcher.Constraint("Equal", 9, 10))
sketch3.addConstraint(Sketcher.Constraint("DistanceY", -1, 1, 21, 2, 2.25))
sketch3.addConstraint(Sketcher.Constraint("DistanceX", -1, 1, 1, 2, 0.633898))
sketch3.addConstraint(Sketcher.Constraint("DistanceY", 4, 2, -1, 1, 2.034798))
sketch3.addConstraint(Sketcher.Constraint("DistanceX", -1, 1, 9, 2, 2.227098))
sketch3.addConstraint(Sketcher.Constraint("DistanceX", 0, 2, 2, 2, 0.735301))
sketch3.addConstraint(Sketcher.Constraint("DistanceY", 0, 2, 3, 2, 0.772198))
sketch3.addConstraint(Sketcher.Constraint("DistanceX", 2, 2, 7, 2, 0.928199))
sketch3.addConstraint(Sketcher.Constraint("DistanceX", 4, 2, 8, 2, 0.820199))
sketch3.addConstraint(Sketcher.Constraint("DistanceX", -1, 1, 0, 2, 0.383172))
sketch3.addConstraint(Sketcher.Constraint("DistanceY", 0, 2, -1, 1, 2.665019))
sketch3.addConstraint(Sketcher.Constraint("DistanceX", -1, 1, 6, 2, 2.265011))
sketch3.addConstraint(Sketcher.Constraint("DistanceY", 9, 2, -1, 1, 0.320208))
pocket2 = body.newObject("PartDesign::Pocket", "Pocket001")
pocket2.Profile = sketch3
pocket2.Length = 10

doc.recompute()
